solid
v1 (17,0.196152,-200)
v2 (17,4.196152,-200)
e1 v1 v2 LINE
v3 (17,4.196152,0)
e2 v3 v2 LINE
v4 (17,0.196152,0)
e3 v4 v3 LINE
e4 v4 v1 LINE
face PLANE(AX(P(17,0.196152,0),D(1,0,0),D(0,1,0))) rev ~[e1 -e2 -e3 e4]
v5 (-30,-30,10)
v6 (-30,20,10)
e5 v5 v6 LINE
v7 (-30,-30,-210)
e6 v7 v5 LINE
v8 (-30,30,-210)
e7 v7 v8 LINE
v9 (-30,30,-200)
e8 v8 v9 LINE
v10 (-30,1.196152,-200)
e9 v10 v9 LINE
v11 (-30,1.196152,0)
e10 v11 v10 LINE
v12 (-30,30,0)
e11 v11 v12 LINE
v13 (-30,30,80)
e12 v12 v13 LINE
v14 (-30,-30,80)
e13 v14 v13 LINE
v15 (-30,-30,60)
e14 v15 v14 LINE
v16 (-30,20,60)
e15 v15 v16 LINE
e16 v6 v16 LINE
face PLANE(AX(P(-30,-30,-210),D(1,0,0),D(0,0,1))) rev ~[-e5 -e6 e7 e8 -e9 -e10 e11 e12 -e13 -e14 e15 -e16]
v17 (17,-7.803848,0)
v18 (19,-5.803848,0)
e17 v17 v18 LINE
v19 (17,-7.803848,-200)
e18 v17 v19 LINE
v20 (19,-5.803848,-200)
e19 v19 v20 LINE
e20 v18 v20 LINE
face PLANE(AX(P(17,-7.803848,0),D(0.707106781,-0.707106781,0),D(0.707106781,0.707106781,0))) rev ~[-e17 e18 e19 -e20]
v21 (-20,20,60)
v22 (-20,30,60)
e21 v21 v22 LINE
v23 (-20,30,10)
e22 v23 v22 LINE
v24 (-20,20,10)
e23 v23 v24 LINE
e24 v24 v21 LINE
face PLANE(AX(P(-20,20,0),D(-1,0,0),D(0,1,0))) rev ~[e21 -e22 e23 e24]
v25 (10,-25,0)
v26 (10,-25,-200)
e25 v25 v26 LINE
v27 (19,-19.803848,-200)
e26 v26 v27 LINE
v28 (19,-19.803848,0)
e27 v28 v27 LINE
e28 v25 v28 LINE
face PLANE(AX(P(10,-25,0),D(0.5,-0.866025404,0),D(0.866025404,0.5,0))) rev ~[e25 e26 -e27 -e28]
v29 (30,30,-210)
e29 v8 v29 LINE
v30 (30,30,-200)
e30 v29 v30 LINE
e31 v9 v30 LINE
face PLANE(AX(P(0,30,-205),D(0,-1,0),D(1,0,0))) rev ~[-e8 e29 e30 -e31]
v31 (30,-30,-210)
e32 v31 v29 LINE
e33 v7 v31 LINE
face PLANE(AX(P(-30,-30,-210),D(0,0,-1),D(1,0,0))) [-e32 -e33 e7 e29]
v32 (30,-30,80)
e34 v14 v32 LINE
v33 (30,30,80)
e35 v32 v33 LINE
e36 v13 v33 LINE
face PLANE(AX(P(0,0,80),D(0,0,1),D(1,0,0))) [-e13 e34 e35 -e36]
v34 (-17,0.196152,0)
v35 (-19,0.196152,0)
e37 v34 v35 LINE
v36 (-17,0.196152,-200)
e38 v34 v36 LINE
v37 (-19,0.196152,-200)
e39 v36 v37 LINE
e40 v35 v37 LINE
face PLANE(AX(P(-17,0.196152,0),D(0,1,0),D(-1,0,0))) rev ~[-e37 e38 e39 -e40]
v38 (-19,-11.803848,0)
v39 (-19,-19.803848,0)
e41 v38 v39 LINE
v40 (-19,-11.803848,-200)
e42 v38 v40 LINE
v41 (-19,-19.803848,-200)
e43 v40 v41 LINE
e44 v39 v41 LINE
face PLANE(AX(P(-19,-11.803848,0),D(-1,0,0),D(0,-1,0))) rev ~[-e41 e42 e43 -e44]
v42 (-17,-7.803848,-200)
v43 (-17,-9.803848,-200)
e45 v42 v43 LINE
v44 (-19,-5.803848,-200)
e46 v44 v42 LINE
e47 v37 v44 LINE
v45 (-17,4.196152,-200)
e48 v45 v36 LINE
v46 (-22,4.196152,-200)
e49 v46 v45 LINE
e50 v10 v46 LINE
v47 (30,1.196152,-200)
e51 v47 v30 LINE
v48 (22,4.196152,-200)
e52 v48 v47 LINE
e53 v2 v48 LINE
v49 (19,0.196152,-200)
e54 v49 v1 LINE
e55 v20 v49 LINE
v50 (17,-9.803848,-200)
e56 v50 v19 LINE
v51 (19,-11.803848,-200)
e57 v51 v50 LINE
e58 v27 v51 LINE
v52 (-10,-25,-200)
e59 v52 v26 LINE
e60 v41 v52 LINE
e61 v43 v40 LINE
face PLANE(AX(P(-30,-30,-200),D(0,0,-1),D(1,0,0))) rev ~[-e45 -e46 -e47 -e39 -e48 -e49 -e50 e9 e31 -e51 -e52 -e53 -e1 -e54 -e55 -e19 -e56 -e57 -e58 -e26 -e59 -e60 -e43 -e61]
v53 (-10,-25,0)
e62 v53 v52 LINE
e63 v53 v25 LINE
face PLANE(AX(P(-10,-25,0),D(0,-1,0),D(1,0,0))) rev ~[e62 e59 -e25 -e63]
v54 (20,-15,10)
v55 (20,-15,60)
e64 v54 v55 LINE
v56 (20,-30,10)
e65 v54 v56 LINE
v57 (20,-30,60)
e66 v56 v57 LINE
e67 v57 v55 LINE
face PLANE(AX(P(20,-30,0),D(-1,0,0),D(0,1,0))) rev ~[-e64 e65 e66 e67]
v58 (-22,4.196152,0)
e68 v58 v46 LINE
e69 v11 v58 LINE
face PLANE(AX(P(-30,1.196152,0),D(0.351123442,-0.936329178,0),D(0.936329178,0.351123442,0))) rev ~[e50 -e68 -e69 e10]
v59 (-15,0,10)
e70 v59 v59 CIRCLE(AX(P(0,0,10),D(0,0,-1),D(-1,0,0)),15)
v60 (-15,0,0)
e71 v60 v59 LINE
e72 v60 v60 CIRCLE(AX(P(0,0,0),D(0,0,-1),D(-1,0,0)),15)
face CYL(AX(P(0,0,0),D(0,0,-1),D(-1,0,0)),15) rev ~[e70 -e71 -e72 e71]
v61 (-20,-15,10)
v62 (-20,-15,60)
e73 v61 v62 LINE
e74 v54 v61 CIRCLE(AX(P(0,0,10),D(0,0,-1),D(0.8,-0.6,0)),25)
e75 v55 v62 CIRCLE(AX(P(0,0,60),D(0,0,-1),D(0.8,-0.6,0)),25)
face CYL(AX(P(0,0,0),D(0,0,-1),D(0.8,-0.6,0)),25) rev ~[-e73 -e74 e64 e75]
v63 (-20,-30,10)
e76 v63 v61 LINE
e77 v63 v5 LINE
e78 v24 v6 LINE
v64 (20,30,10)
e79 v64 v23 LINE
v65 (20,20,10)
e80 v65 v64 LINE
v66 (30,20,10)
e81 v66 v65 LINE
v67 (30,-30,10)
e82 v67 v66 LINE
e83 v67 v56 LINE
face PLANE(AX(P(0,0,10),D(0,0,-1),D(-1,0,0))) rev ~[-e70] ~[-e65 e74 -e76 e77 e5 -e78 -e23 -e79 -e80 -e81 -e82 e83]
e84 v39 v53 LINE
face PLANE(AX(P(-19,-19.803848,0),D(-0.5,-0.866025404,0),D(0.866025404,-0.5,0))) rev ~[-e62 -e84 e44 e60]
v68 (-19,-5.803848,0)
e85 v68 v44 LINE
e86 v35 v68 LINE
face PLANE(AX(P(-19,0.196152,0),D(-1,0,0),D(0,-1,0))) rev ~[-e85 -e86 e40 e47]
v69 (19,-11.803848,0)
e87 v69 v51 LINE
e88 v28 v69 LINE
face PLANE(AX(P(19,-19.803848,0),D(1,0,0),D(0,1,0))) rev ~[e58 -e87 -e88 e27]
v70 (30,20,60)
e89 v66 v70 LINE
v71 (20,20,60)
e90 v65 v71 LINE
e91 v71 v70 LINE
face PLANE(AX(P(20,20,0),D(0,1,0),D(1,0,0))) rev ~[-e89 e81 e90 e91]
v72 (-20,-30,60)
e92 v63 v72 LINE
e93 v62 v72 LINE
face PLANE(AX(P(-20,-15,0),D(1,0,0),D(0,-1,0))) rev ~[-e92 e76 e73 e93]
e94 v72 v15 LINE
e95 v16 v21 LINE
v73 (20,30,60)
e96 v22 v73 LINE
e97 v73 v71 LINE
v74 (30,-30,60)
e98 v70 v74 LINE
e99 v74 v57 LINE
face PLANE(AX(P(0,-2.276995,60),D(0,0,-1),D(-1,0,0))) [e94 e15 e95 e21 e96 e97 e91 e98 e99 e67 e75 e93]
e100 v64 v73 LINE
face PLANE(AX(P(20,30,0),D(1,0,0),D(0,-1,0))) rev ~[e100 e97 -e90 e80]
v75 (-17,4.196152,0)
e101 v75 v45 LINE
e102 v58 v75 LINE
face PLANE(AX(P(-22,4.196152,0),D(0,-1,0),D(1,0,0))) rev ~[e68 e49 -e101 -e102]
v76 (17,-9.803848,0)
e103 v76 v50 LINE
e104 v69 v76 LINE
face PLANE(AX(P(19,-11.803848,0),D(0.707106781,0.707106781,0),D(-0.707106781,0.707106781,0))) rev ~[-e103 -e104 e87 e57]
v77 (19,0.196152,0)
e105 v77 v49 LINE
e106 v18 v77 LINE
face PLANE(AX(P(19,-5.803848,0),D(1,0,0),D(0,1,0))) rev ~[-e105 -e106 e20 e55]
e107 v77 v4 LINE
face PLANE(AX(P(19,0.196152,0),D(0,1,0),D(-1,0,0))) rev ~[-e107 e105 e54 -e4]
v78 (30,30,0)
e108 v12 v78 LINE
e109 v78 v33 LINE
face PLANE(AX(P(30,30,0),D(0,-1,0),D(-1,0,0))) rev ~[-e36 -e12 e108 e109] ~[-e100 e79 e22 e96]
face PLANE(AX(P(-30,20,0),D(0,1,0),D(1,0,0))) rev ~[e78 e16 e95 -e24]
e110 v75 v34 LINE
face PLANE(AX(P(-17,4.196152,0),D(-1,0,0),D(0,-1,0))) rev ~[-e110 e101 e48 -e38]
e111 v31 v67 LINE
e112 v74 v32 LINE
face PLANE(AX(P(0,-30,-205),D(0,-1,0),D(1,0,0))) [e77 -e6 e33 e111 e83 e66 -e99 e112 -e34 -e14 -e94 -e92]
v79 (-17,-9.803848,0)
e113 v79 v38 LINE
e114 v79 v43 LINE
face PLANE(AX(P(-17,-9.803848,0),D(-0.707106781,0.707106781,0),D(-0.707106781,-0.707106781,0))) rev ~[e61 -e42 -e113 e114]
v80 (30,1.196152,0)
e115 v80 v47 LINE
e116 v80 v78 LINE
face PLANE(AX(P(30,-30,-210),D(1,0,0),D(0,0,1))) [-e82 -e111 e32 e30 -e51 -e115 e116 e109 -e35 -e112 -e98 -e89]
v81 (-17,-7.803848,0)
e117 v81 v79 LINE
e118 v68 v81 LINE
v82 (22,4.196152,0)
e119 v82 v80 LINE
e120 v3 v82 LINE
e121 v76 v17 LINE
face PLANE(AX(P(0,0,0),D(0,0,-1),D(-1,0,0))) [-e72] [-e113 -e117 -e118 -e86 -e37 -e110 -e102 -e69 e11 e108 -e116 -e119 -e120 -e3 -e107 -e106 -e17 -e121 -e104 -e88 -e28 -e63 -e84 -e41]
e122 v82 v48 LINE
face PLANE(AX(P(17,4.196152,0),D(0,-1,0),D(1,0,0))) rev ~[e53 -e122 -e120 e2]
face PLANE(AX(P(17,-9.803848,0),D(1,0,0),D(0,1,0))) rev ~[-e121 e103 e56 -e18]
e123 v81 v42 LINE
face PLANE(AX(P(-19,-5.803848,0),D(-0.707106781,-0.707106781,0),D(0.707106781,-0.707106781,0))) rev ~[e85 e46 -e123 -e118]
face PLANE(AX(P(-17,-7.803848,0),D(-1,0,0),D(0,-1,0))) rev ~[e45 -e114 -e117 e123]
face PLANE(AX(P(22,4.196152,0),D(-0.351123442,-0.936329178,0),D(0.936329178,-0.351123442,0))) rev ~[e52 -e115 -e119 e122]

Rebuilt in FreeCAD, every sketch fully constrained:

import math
import FreeCAD as App
import Part
import Sketcher
from FreeCAD import Vector
Q = App.Units.Quantity


def add_polygon(sketch, points):
    """Adds a closed chain of lines whose ends are joined by coincident constraints."""
    first, n = sketch.GeometryCount, len(points)
    for a, b in zip(points, points[1:] + points[:1]):
        sketch.addGeometry(Part.LineSegment(App.Vector(*a, 0), App.Vector(*b, 0)), False)
    for i in range(n):
        sketch.addConstraint(Sketcher.Constraint("Coincident", first + i, 2, first + (i + 1) % n, 1))

doc = App.newDocument("Part")
body = doc.addObject("PartDesign::Body", "Body")

sketch1 = body.newObject("Sketcher::SketchObject", "Sketch")
sketch1.AttachmentSupport = (doc.getObject("XY_Plane"), [""])
sketch1.MapMode = "FlatFace"
add_polygon(sketch1, [(-30, 30), (-30, -30), (30, -30), (30, 30)])
sketch1.addConstraint([
    Sketcher.Constraint("Vertical", 0),
    Sketcher.Constraint("Horizontal", 1),
    Sketcher.Constraint("Vertical", 2),
    Sketcher.Constraint("Horizontal", 3),
    Sketcher.Constraint("Symmetric", 0, 2, 2, 2, -1, 1),
    Sketcher.Constraint("Equal", 3, 0),
    Sketcher.Constraint("DistanceX", 1, 1, 1, 2, 60.0),
])
pad1 = body.newObject("PartDesign::Pad", "Pad")
pad1.Profile = sketch1
pad1.Length = 80

sketch2 = body.newObject("Sketcher::SketchObject", "Sketch001")
sketch2.AttachmentSupport = (doc.getObject("XY_Plane"), [""])
sketch2.MapMode = "FlatFace"
sketch2.addGeometry([
    Part.LineSegment(Vector(-20, 30, 0), Vector(20, 30, 0)),
    Part.LineSegment(Vector(20, 30, 0), Vector(20, 20, 0)),
    Part.LineSegment(Vector(20, 20, 0), Vector(30, 20, 0)),
    Part.LineSegment(Vector(30, 20, 0), Vector(30, -30, 0)),
    Part.LineSegment(Vector(30, -30, 0), Vector(20, -30, 0)),
    Part.LineSegment(Vector(20, -30, 0), Vector(20, -15, 0)),
    Part.ArcOfCircle(Part.Circle(Vector(0, 0, 0), Vector(0, 0, 1), 25), math.radians(-143), math.radians(-37)),
    Part.LineSegment(Vector(-20, -15, 0), Vector(-20, -30, 0)),
    Part.LineSegment(Vector(-20, -30, 0), Vector(-30, -30, 0)),
    Part.LineSegment(Vector(-30, -30, 0), Vector(-30, 20, 0)),
    Part.LineSegment(Vector(-30, 20, 0), Vector(-20, 20, 0)),
    Part.LineSegment(Vector(-20, 20, 0), Vector(-20, 30, 0)),
], False)
sketch2.addConstraint([
    Sketcher.Constraint("Coincident", 0, 2, 1, 1),
    Sketcher.Constraint("Coincident", 1, 2, 2, 1),
    Sketcher.Constraint("Coincident", 2, 2, 3, 1),
    Sketcher.Constraint("Coincident", 3, 2, 4, 1),
    Sketcher.Constraint("Coincident", 4, 2, 5, 1),
    Sketcher.Constraint("Coincident", 5, 2, 6, 2),
    Sketcher.Constraint("Coincident", 6, 1, 7, 1),
    Sketcher.Constraint("Coincident", 7, 2, 8, 1),
    Sketcher.Constraint("Coincident", 8, 2, 9, 1),
    Sketcher.Constraint("Coincident", 9, 2, 10, 1),
    Sketcher.Constraint("Coincident", 10, 2, 11, 1),
    Sketcher.Constraint("Coincident", 11, 2, 0, 1),
    Sketcher.Constraint("Horizontal", 0),
    Sketcher.Constraint("Vertical", 1),
    Sketcher.Constraint("Horizontal", 2),
    Sketcher.Constraint("Vertical", 3),
    Sketcher.Constraint("Horizontal", 4),
    Sketcher.Constraint("Vertical", 5),
    Sketcher.Constraint("Vertical", 7),
    Sketcher.Constraint("Horizontal", 8),
    Sketcher.Constraint("Vertical", 9),
    Sketcher.Constraint("Horizontal", 10),
    Sketcher.Constraint("Vertical", 11),
    Sketcher.Constraint("Coincident", 6, 3, -1, 1),
    Sketcher.Constraint("Symmetric", 0, 2, 7, 2, -1, 1),
    Sketcher.Constraint("Symmetric", 4, 2, 11, 2, -1, 1),
    Sketcher.Constraint("Symmetric", 2, 2, 9, 2, -2),
    Sketcher.Constraint("Horizontal", 5, 2, 6, 1),
    Sketcher.Constraint("Equal", 10, 1),
    Sketcher.Constraint("Radius", 6, 25.0),
    Sketcher.Constraint("DistanceX", 0, 1, 0, 2, 40.0),
    Sketcher.Constraint("DistanceX", 2, 1, 2, 2, 10.0),
    Sketcher.Constraint("DistanceY", 3, 2, 3, 1, 50.0),
])
pocket1 = body.newObject("PartDesign::Pocket", "Pocket")
pocket1.Profile = sketch2
pocket1.Length = 60
pocket1.Reversed = True

sketch3 = body.newObject("Sketcher::SketchObject", "Sketch002")
sketch3.AttachmentSupport = (doc.getObject("XY_Plane"), [""])
sketch3.MapMode = "FlatFace"
add_polygon(sketch3, [(30, 30), (30, -30), (-30, -30), (-30, 30)])
sketch3.addConstraint([
    Sketcher.Constraint("Vertical", 0),
    Sketcher.Constraint("Horizontal", 1),
    Sketcher.Constraint("Vertical", 2),
    Sketcher.Constraint("Horizontal", 3),
    Sketcher.Constraint("Symmetric", 0, 2, 2, 2, -1, 1),
    Sketcher.Constraint("Equal", 3, 0),
    Sketcher.Constraint("DistanceX", 1, 2, 1, 1, 60.0),
])
pad2 = body.newObject("PartDesign::Pad", "Pad001")
pad2.Profile = sketch3
pad2.Length = 10

sketch4 = body.newObject("Sketcher::SketchObject", "Sketch003")
sketch4.AttachmentSupport = (doc.getObject("XY_Plane"), [""])
sketch4.MapMode = "FlatFace"
sketch4.addGeometry(Part.Circle(Vector(0, 0, 0), Vector(0, 0, 1), 15), False)
sketch4.addConstraint([
    Sketcher.Constraint("Coincident", 0, 3, -1, 1),
    Sketcher.Constraint("Diameter", 0, 30.0),
])
pocket2 = body.newObject("PartDesign::Pocket", "Pocket001")
pocket2.Profile = sketch4
pocket2.Length = 10
pocket2.Reversed = True

sketch5 = body.newObject("Sketcher::SketchObject", "Sketch004")
sketch5.AttachmentSupport = (doc.getObject("XY_Plane"), [""])
sketch5.MapMode = "FlatFace"
add_polygon(sketch5, [(10, -25), (19, -19.8), (19, -11.8), (17, -9.8), (17, -7.8), (19, -5.8), (19, 0.2), (17, 0.2), (17, 4.2), (22, 4.2), (30, 1.2), (30, -30), (-30, -30), (-30, 1.2), (-22, 4.2), (-17, 4.2), (-17, 0.2), (-19, 0.2), (-19, -5.8), (-17, -7.8), (-17, -9.8), (-19, -11.8), (-19, -19.8), (-10, -25)])
sketch5.addConstraint([
    Sketcher.Constraint("Vertical", 1),
    Sketcher.Constraint("Vertical", 3),
    Sketcher.Constraint("Vertical", 5),
    Sketcher.Constraint("Horizontal", 6),
    Sketcher.Constraint("Vertical", 7),
    Sketcher.Constraint("Horizontal", 8),
    Sketcher.Constraint("Vertical", 10),
    Sketcher.Constraint("Horizontal", 11),
    Sketcher.Constraint("Vertical", 12),
    Sketcher.Constraint("Horizontal", 14),
    Sketcher.Constraint("Vertical", 15),
    Sketcher.Constraint("Horizontal", 16),
    Sketcher.Constraint("Vertical", 17),
    Sketcher.Constraint("Vertical", 19),
    Sketcher.Constraint("Vertical", 21),
    Sketcher.Constraint("Horizontal", 23),
    Sketcher.Constraint("Symmetric", 9, 2, 12, 2, -2),
    Sketcher.Constraint("Symmetric", 8, 2, 13, 2, -2),
    Sketcher.Constraint("Symmetric", 6, 2, 15, 2, -2),
    Sketcher.Constraint("Symmetric", 4, 2, 17, 2, -2),
    Sketcher.Constraint("Symmetric", 3, 2, 18, 2, -2),
    Sketcher.Constraint("Symmetric", 1, 2, 20, 2, -2),
    Sketcher.Constraint("Perpendicular", 2, 4),
    Sketcher.Constraint("Perpendicular", 4, 18),
    Sketcher.Constraint("Perpendicular", 18, 20),
    Sketcher.Constraint("Horizontal", 0, 2, 21, 2),
    Sketcher.Constraint("Vertical", 1, 2, 4, 2),
    Sketcher.Constraint("Vertical", 3, 2, 6, 2),
    Sketcher.Constraint("Equal", 16, 3),
    Sketcher.Constraint("Equal", 0, 22),
    Sketcher.Constraint("DistanceX", 6, 2, 6, 1, 2.0),
    Sketcher.Constraint("DistanceX", 8, 1, 8, 2, 5.0),
    Sketcher.Constraint("DistanceX", 11, 2, 11, 1, 60.0),
    Sketcher.Constraint("DistanceX", 23, 1, 23, 2, 20.0),
    Sketcher.Constraint("DistanceY", 1, 1, 1, 2, 8.0),
    Sketcher.Constraint("DistanceY", 5, 1, 5, 2, 6.0),
    Sketcher.Constraint("DistanceY", 7, 1, 7, 2, 4.0),
    Sketcher.Constraint("Angle", 0, Q("30 deg")),
    Sketcher.Constraint("DistanceX", -1, 1, 0, 2, 19.0),
    Sketcher.Constraint("DistanceY", 10, 2, -1, 1, 30.0),
    Sketcher.Constraint("DistanceY", 22, 2, -1, 1, 25.0),
    Sketcher.Constraint("DistanceY", 9, 2, 8, 2, 3.0),
])
pad3 = body.newObject("PartDesign::Pad", "Pad002")
pad3.Profile = sketch5
pad3.Length = 200
pad3.Reversed = True

sketch6 = body.newObject("Sketcher::SketchObject", "Sketch005")
sketch6.AttachmentSupport = (doc.getObject("XZ_Plane"), [""])
sketch6.MapMode = "FlatFace"
sketch6.AttachmentOffset = App.Placement(Vector(0, 0, 30), App.Rotation())
add_polygon(sketch6, [(-30, -200), (-30, -210), (30, -210), (30, -200)])
sketch6.addConstraint([
    Sketcher.Constraint("Vertical", 0),
    Sketcher.Constraint("Horizontal", 1),
    Sketcher.Constraint("Vertical", 2),
    Sketcher.Constraint("Horizontal", 3),
    Sketcher.Constraint("DistanceX", 1, 1, 1, 2, 60.0),
    Sketcher.Constraint("DistanceY", 0, 2, 0, 1, 10.0),
    Sketcher.Constraint("DistanceX", 0, 2, -1, 1, 30.0),
    Sketcher.Constraint("DistanceY", 0, 2, -1, 1, 210.0),
])
pad4 = body.newObject("PartDesign::Pad", "Pad003")
pad4.Profile = sketch6
pad4.Length = 60
pad4.Reversed = True

doc.recompute()
